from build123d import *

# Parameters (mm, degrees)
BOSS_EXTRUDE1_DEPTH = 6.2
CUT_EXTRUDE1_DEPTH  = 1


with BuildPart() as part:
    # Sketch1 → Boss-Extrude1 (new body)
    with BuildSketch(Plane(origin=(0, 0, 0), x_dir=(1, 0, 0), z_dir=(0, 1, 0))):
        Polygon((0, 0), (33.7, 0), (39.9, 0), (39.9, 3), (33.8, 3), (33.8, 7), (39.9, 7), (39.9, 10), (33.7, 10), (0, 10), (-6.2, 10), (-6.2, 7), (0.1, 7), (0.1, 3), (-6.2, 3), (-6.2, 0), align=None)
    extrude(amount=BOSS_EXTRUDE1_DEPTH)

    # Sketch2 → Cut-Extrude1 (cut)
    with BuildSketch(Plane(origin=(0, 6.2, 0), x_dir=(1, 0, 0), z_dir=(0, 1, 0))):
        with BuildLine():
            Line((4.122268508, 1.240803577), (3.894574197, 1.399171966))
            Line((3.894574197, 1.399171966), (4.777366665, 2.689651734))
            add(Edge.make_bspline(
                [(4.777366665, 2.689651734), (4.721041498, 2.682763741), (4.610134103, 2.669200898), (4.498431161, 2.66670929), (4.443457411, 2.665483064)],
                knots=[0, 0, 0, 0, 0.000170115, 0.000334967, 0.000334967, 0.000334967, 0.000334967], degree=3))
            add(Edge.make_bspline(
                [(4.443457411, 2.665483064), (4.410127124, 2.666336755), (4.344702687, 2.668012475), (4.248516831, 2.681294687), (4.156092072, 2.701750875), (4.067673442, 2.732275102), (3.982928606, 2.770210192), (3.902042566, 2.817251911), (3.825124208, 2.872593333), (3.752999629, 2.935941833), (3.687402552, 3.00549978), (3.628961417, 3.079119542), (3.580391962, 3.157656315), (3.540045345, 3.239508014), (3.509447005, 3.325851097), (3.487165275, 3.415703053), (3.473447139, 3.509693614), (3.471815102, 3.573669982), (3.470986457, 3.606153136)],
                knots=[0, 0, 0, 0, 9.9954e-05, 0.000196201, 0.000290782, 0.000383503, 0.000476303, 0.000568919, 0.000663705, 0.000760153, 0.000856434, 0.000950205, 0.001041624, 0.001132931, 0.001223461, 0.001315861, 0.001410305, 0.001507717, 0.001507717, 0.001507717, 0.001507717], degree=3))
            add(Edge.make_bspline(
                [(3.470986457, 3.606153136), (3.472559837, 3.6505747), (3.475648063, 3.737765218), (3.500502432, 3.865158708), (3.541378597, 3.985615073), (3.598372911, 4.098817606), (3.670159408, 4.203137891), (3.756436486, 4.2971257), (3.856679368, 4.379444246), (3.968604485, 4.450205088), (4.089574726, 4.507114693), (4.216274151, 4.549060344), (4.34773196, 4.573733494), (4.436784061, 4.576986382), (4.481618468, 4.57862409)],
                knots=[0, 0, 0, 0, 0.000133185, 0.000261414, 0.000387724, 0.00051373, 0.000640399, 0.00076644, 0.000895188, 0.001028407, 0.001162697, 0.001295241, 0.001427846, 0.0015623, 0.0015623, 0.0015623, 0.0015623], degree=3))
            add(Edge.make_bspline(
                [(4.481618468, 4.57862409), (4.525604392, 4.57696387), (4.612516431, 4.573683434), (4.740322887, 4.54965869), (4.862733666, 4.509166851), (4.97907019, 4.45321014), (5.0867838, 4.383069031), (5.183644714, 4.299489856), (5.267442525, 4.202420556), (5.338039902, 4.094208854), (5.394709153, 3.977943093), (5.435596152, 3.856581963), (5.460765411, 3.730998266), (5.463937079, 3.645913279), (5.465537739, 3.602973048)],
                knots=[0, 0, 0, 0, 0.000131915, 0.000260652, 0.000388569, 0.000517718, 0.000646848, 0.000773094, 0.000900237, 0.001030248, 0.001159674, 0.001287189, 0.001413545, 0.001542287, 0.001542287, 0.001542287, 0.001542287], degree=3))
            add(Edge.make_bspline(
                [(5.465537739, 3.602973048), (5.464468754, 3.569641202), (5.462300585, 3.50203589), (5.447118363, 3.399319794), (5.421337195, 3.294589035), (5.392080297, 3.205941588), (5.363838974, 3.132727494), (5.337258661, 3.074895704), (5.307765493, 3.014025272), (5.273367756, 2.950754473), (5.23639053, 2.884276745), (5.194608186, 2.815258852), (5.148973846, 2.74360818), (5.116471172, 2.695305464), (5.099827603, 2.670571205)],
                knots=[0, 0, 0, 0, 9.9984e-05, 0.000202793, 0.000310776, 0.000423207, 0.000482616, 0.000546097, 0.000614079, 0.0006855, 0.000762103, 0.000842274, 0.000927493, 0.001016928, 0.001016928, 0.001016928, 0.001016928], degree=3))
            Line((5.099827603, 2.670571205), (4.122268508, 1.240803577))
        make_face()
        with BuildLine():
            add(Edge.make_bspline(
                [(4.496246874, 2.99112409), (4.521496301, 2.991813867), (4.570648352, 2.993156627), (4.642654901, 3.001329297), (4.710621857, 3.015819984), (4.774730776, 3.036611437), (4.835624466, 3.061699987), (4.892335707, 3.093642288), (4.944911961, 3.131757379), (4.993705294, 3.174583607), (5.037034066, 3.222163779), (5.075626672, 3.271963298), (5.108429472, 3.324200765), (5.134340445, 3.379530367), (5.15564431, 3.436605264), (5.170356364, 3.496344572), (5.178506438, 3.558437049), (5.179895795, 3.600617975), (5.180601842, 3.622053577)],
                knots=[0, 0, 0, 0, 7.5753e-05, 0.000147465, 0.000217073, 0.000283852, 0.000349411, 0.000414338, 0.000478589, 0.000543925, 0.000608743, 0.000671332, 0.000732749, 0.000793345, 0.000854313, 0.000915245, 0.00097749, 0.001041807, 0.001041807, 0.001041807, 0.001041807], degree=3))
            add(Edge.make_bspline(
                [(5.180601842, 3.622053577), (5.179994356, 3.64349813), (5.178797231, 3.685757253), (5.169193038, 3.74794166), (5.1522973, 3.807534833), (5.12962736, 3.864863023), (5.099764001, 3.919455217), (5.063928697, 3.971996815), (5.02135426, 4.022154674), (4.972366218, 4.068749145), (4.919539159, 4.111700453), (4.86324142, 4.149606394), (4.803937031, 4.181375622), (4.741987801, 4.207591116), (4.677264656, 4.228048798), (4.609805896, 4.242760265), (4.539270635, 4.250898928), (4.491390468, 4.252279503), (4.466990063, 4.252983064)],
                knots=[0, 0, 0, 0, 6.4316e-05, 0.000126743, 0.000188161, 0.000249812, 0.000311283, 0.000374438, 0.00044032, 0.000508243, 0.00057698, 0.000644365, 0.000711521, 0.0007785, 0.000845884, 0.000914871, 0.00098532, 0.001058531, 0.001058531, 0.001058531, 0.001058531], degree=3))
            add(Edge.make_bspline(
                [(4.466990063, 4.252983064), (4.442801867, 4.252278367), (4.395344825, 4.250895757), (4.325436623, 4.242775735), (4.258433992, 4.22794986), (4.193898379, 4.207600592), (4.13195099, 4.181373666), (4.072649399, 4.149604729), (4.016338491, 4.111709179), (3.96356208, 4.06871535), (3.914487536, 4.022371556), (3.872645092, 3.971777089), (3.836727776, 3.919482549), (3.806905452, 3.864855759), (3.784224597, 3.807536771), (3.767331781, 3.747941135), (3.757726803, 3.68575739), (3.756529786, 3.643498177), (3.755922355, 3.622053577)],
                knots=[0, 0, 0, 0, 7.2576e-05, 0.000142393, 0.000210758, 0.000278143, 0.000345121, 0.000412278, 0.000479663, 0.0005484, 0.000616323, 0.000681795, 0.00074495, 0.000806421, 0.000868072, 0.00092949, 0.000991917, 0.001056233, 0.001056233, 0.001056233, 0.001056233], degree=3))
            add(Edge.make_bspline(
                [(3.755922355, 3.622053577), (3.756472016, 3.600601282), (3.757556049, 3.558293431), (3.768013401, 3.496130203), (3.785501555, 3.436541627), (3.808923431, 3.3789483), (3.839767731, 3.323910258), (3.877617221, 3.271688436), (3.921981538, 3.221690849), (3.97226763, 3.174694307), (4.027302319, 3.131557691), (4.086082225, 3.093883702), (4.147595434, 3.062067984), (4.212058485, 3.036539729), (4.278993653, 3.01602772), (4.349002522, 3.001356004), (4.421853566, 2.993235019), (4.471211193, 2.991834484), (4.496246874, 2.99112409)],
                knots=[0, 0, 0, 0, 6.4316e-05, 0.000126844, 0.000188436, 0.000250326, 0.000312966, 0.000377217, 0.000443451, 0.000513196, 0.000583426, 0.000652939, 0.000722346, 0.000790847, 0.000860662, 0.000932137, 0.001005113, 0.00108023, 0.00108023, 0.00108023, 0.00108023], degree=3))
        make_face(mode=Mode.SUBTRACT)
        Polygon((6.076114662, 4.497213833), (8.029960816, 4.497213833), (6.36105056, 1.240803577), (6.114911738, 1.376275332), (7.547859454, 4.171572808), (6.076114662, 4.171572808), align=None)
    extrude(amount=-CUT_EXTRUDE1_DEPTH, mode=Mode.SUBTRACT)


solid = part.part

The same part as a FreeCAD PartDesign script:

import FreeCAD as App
import Part
import Sketcher

V = App.Vector
Q = App.Units.Quantity

doc = App.newDocument("Part")
params = doc.addObject("Spreadsheet::Sheet", "Params")
for row, (alias, value) in enumerate([
    ("sketch1_height", "3 mm"),
    ("sketch1_height2", "4 mm"),
    ("sketch1_width", "6.1 mm"),
    ("sketch1_width2", "46.1 mm"),
    ("sketch1_width3", "6.3 mm"),
    ("pad1_length", "6.2 mm"),
    ("pocket1_length", "1 mm"),
], start=1):
    params.set(f"A{row}", alias)
    params.set(f"B{row}", "=" + value)
    params.setAlias(f"B{row}", alias)

body = doc.addObject("PartDesign::Body", "Body")

sketch1 = body.newObject("Sketcher::SketchObject", "Sketch")
sketch1.AttachmentSupport = (doc.getObject("XZ_Plane"), [""])
sketch1.MapMode = "FlatFace"
sketch1.addGeometry(Part.LineSegment(V(39.9, 0, 0), V(39.9, -3, 0)), False)
sketch1.addGeometry(Part.LineSegment(V(39.9, -3, 0), V(33.8, -3, 0)), False)
sketch1.addGeometry(Part.LineSegment(V(33.8, -3, 0), V(33.8, -7, 0)), False)
sketch1.addGeometry(Part.LineSegment(V(33.8, -7, 0), V(39.9, -7, 0)), False)
sketch1.addGeometry(Part.LineSegment(V(39.9, -7, 0), V(39.9, -10, 0)), False)
sketch1.addGeometry(Part.LineSegment(V(39.9, -10, 0), V(-6.2, -10, 0)), False)
sketch1.addGeometry(Part.LineSegment(V(-6.2, -10, 0), V(-6.2, -7, 0)), False)
sketch1.addGeometry(Part.LineSegment(V(-6.2, -7, 0), V(0.1, -7, 0)), False)
sketch1.addGeometry(Part.LineSegment(V(0.1, -7, 0), V(0.1, -3, 0)), False)
sketch1.addGeometry(Part.LineSegment(V(0.1, -3, 0), V(-6.2, -3, 0)), False)
sketch1.addGeometry(Part.LineSegment(V(-6.2, -3, 0), V(-6.2, 0, 0)), False)
sketch1.addGeometry(Part.LineSegment(V(-6.2, 0, 0), V(39.9, 0, 0)), False)
sketch1.addConstraint(Sketcher.Constraint("Coincident", 0, 2, 1, 1))
sketch1.addConstraint(Sketcher.Constraint("Coincident", 1, 2, 2, 1))
sketch1.addConstraint(Sketcher.Constraint("Coincident", 2, 2, 3, 1))
sketch1.addConstraint(Sketcher.Constraint("Coincident", 3, 2, 4, 1))
sketch1.addConstraint(Sketcher.Constraint("Coincident", 4, 2, 5, 1))
sketch1.addConstraint(Sketcher.Constraint("Coincident", 5, 2, 6, 1))
sketch1.addConstraint(Sketcher.Constraint("Coincident", 6, 2, 7, 1))
sketch1.addConstraint(Sketcher.Constraint("Coincident", 7, 2, 8, 1))
sketch1.addConstraint(Sketcher.Constraint("Coincident", 8, 2, 9, 1))
sketch1.addConstraint(Sketcher.Constraint("Coincident", 9, 2, 10, 1))
sketch1.addConstraint(Sketcher.Constraint("Coincident", 10, 2, 11, 1))
sketch1.addConstraint(Sketcher.Constraint("Coincident", 11, 2, 0, 1))
sketch1.addConstraint(Sketcher.Constraint("Vertical", 0))
sketch1.addConstraint(Sketcher.Constraint("Horizontal", 1))
sketch1.addConstraint(Sketcher.Constraint("Vertical", 2))
sketch1.addConstraint(Sketcher.Constraint("Horizontal", 3))
sketch1.addConstraint(Sketcher.Constraint("Vertical", 4))
sketch1.addConstraint(Sketcher.Constraint("Horizontal", 5))
sketch1.addConstraint(Sketcher.Constraint("Vertical", 6))
sketch1.addConstraint(Sketcher.Constraint("Horizontal", 7))
sketch1.addConstraint(Sketcher.Constraint("Vertical", 8))
sketch1.addConstraint(Sketcher.Constraint("Horizontal", 9))
sketch1.addConstraint(Sketcher.Constraint("Vertical", 10))
sketch1.addConstraint(Sketcher.Constraint("Horizontal", 11))
sketch1.addConstraint(Sketcher.Constraint("PointOnObject", 10, 2, -1))
sketch1.addConstraint(Sketcher.Constraint("Horizontal", 3, 2, 6, 2))
sketch1.addConstraint(Sketcher.Constraint("Horizontal", 1, 2, 8, 2))
sketch1.addConstraint(Sketcher.Constraint("Vertical", 0, 2, 3, 2))
sketch1.addConstraint(Sketcher.Constraint("Vertical", 6, 2, 9, 2))
sketch1.addConstraint(Sketcher.Constraint("Equal", 0, 4))
sketch1.addConstraint(Sketcher.Constraint("DistanceY", 0, 2, 0, 1, Q("3 mm")))
sketch1.addConstraint(Sketcher.Constraint("DistanceY", 2, 2, 2, 1, Q("4 mm")))
sketch1.addConstraint(Sketcher.Constraint("DistanceX", 1, 2, 1, 1, Q("6.1 mm")))
sketch1.addConstraint(Sketcher.Constraint("DistanceX", 5, 2, 5, 1, Q("46.1 mm")))
sketch1.addConstraint(Sketcher.Constraint("DistanceX", 7, 1, 7, 2, Q("6.3 mm")))
sketch1.addConstraint(Sketcher.Constraint("DistanceX", -1, 1, 0, 2, Q("39.9 mm")))
sketch1.setExpression("Constraints[30]", "Params.sketch1_height")
sketch1.setExpression("Constraints[31]", "Params.sketch1_height2")
sketch1.setExpression("Constraints[32]", "Params.sketch1_width")
sketch1.setExpression("Constraints[33]", "Params.sketch1_width2")
sketch1.setExpression("Constraints[34]", "Params.sketch1_width3")
pad1 = body.newObject("PartDesign::Pad", "Pad")
pad1.Profile = sketch1
pad1.setExpression("Length", "Params.pad1_length")
pad1.Reversed = True

sketch2 = body.newObject("Sketcher::SketchObject", "Sketch001")
sketch2.AttachmentSupport = (doc.getObject("XZ_Plane"), [""])
sketch2.MapMode = "FlatFace"
sketch2.AttachmentOffset = App.Placement(V(0, 0, -6.2), App.Rotation())
sketch2.addGeometry(Part.LineSegment(V(3.894574, -1.399172, 0), V(4.122269, -1.240804, 0)), False)
sketch2.addGeometry(Part.LineSegment(V(4.122269, -1.240804, 0), V(5.099828, -2.670571, 0)), False)
sketch2.addGeometry(Part.BSplineCurve([V(5.465538, -3.602973, 0), V(5.464469, -3.569641, 0), V(5.462301, -3.502036, 0), V(5.447118, -3.39932, 0), V(5.421337, -3.294589, 0), V(5.39208, -3.205942, 0), V(5.363839, -3.132727, 0), V(5.337259, -3.074896, 0), V(5.307765, -3.014025, 0), V(5.273368, -2.950754, 0), V(5.236391, -2.884277, 0), V(5.194608, -2.815259, 0), V(5.148974, -2.743608, 0), V(5.116471, -2.695305, 0), V(5.099828, -2.670571, 0)], [4, 1, 1, 1, 1, 1, 1, 1, 1, 1, 1, 1, 4], [0, 0.000099984, 0.000202793, 0.000310776, 0.000423207, 0.000482616, 0.000546097, 0.000614079, 0.0006855, 0.000762103, 0.000842274, 0.000927493, 0.001016928], False, 3, [1, 1, 1, 1, 1, 1, 1, 1, 1, 1, 1, 1, 1, 1, 1], False), False)
sketch2.addGeometry(Part.BSplineCurve([V(4.481618, -4.578624, 0), V(4.525604, -4.576964, 0), V(4.612516, -4.573683, 0), V(4.740323, -4.549659, 0), V(4.862734, -4.509167, 0), V(4.97907, -4.45321, 0), V(5.086784, -4.383069, 0), V(5.183645, -4.29949, 0), V(5.267443, -4.202421, 0), V(5.33804, -4.094209, 0), V(5.394709, -3.977943, 0), V(5.435596, -3.856582, 0), V(5.460765, -3.730998, 0), V(5.463937, -3.645913, 0), V(5.465538, -3.602973, 0)], [4, 1, 1, 1, 1, 1, 1, 1, 1, 1, 1, 1, 4], [0, 0.000131915, 0.000260652, 0.000388569, 0.000517718, 0.000646848, 0.000773094, 0.000900237, 0.001030248, 0.001159674, 0.001287189, 0.001413545, 0.001542287], False, 3, [1, 1, 1, 1, 1, 1, 1, 1, 1, 1, 1, 1, 1, 1, 1], False), False)
sketch2.addGeometry(Part.BSplineCurve([V(3.470986, -3.606153, 0), V(3.47256, -3.650575, 0), V(3.475648, -3.737765, 0), V(3.500502, -3.865159, 0), V(3.541379, -3.985615, 0), V(3.598373, -4.098818, 0), V(3.670159, -4.203138, 0), V(3.756436, -4.297126, 0), V(3.856679, -4.379444, 0), V(3.968604, -4.450205, 0), V(4.089575, -4.507115, 0), V(4.216274, -4.54906, 0), V(4.347732, -4.573733, 0), V(4.436784, -4.576986, 0), V(4.481618, -4.578624, 0)], [4, 1, 1, 1, 1, 1, 1, 1, 1, 1, 1, 1, 4], [0, 0.000133185, 0.000261414, 0.000387724, 0.00051373, 0.000640399, 0.00076644, 0.000895188, 0.001028407, 0.001162697, 0.001295241, 0.001427846, 0.0015623], False, 3, [1, 1, 1, 1, 1, 1, 1, 1, 1, 1, 1, 1, 1, 1, 1], False), False)
sketch2.addGeometry(Part.BSplineCurve([V(4.443457, -2.665483, 0), V(4.410127, -2.666337, 0), V(4.344703, -2.668012, 0), V(4.248517, -2.681295, 0), V(4.156092, -2.701751, 0), V(4.067673, -2.732275, 0), V(3.982929, -2.77021, 0), V(3.902043, -2.817252, 0), V(3.825124, -2.872593, 0), V(3.753, -2.935942, 0), V(3.687403, -3.0055, 0), V(3.628961, -3.07912, 0), V(3.580392, -3.157656, 0), V(3.540045, -3.239508, 0), V(3.509447, -3.325851, 0), V(3.487165, -3.415703, 0), V(3.473447, -3.509694, 0), V(3.471815, -3.57367, 0), V(3.470986, -3.606153, 0)], [4, 1, 1, 1, 1, 1, 1, 1, 1, 1, 1, 1, 1, 1, 1, 1, 4], [0, 0.000099954, 0.000196201, 0.000290782, 0.000383503, 0.000476303, 0.000568919, 0.000663705, 0.000760153, 0.000856434, 0.000950205, 0.001041624, 0.001132931, 0.001223461, 0.001315861, 0.001410305, 0.001507717], False, 3, [1, 1, 1, 1, 1, 1, 1, 1, 1, 1, 1, 1, 1, 1, 1, 1, 1, 1, 1], False), False)
sketch2.addGeometry(Part.BSplineCurve([V(4.777367, -2.689652, 0), V(4.721041, -2.682764, 0), V(4.610134, -2.669201, 0), V(4.498431, -2.666709, 0), V(4.443457, -2.665483, 0)], [4, 1, 4], [0, 0.000170115, 0.000334967], False, 3, [1, 1, 1, 1, 1], False), False)
sketch2.addGeometry(Part.LineSegment(V(4.777367, -2.689652, 0), V(3.894574, -1.399172, 0)), False)
sketch2.addGeometry(Part.BSplineCurve([V(3.755922, -3.622054, 0), V(3.756472, -3.600601, 0), V(3.757556, -3.558293, 0), V(3.768013, -3.49613, 0), V(3.785502, -3.436542, 0), V(3.808923, -3.378948, 0), V(3.839768, -3.32391, 0), V(3.877617, -3.271688, 0), V(3.921982, -3.221691, 0), V(3.972268, -3.174694, 0), V(4.027302, -3.131558, 0), V(4.086082, -3.093884, 0), V(4.147595, -3.062068, 0), V(4.212058, -3.03654, 0), V(4.278994, -3.016028, 0), V(4.349003, -3.001356, 0), V(4.421854, -2.993235, 0), V(4.471211, -2.991834, 0), V(4.496247, -2.991124, 0)], [4, 1, 1, 1, 1, 1, 1, 1, 1, 1, 1, 1, 1, 1, 1, 1, 4], [0, 0.000064316, 0.000126844, 0.000188436, 0.000250326, 0.000312966, 0.000377217, 0.000443451, 0.000513196, 0.000583426, 0.000652939, 0.000722346, 0.000790847, 0.000860662, 0.000932137, 0.001005113, 0.00108023], False, 3, [1, 1, 1, 1, 1, 1, 1, 1, 1, 1, 1, 1, 1, 1, 1, 1, 1, 1, 1], False), False)
sketch2.addGeometry(Part.BSplineCurve([V(4.46699, -4.252983, 0), V(4.442802, -4.252278, 0), V(4.395345, -4.250896, 0), V(4.325437, -4.242776, 0), V(4.258434, -4.22795, 0), V(4.193898, -4.207601, 0), V(4.131951, -4.181374, 0), V(4.072649, -4.149605, 0), V(4.016338, -4.111709, 0), V(3.963562, -4.068715, 0), V(3.914488, -4.022372, 0), V(3.872645, -3.971777, 0), V(3.836728, -3.919483, 0), V(3.806905, -3.864856, 0), V(3.784225, -3.807537, 0), V(3.767332, -3.747941, 0), V(3.757727, -3.685757, 0), V(3.75653, -3.643498, 0), V(3.755922, -3.622054, 0)], [4, 1, 1, 1, 1, 1, 1, 1, 1, 1, 1, 1, 1, 1, 1, 1, 4], [0, 0.000072576, 0.000142393, 0.000210758, 0.000278143, 0.000345121, 0.000412278, 0.000479663, 0.0005484, 0.000616323, 0.000681795, 0.00074495, 0.000806421, 0.000868072, 0.00092949, 0.000991917, 0.001056233], False, 3, [1, 1, 1, 1, 1, 1, 1, 1, 1, 1, 1, 1, 1, 1, 1, 1, 1, 1, 1], False), False)
sketch2.addGeometry(Part.BSplineCurve([V(5.180602, -3.622054, 0), V(5.179994, -3.643498, 0), V(5.178797, -3.685757, 0), V(5.169193, -3.747942, 0), V(5.152297, -3.807535, 0), V(5.129627, -3.864863, 0), V(5.099764, -3.919455, 0), V(5.063929, -3.971997, 0), V(5.021354, -4.022155, 0), V(4.972366, -4.068749, 0), V(4.919539, -4.1117, 0), V(4.863241, -4.149606, 0), V(4.803937, -4.181376, 0), V(4.741988, -4.207591, 0), V(4.677265, -4.228049, 0), V(4.609806, -4.24276, 0), V(4.539271, -4.250899, 0), V(4.49139, -4.25228, 0), V(4.46699, -4.252983, 0)], [4, 1, 1, 1, 1, 1, 1, 1, 1, 1, 1, 1, 1, 1, 1, 1, 4], [0, 0.000064316, 0.000126743, 0.000188161, 0.000249812, 0.000311283, 0.000374438, 0.00044032, 0.000508243, 0.00057698, 0.000644365, 0.000711521, 0.0007785, 0.000845884, 0.000914871, 0.00098532, 0.001058531], False, 3, [1, 1, 1, 1, 1, 1, 1, 1, 1, 1, 1, 1, 1, 1, 1, 1, 1, 1, 1], False), False)
sketch2.addGeometry(Part.BSplineCurve([V(4.496247, -2.991124, 0), V(4.521496, -2.991814, 0), V(4.570648, -2.993157, 0), V(4.642655, -3.001329, 0), V(4.710622, -3.01582, 0), V(4.774731, -3.036611, 0), V(4.835624, -3.0617, 0), V(4.892336, -3.093642, 0), V(4.944912, -3.131757, 0), V(4.993705, -3.174584, 0), V(5.037034, -3.222164, 0), V(5.075627, -3.271963, 0), V(5.108429, -3.324201, 0), V(5.13434, -3.37953, 0), V(5.155644, -3.436605, 0), V(5.170356, -3.496345, 0), V(5.178506, -3.558437, 0), V(5.179896, -3.600618, 0), V(5.180602, -3.622054, 0)], [4, 1, 1, 1, 1, 1, 1, 1, 1, 1, 1, 1, 1, 1, 1, 1, 4], [0, 0.000075753, 0.000147465, 0.000217073, 0.000283852, 0.000349411, 0.000414338, 0.000478589, 0.000543925, 0.000608743, 0.000671332, 0.000732749, 0.000793345, 0.000854313, 0.000915245, 0.00097749, 0.001041807], False, 3, [1, 1, 1, 1, 1, 1, 1, 1, 1, 1, 1, 1, 1, 1, 1, 1, 1, 1, 1], False), False)
sketch2.addGeometry(Part.LineSegment(V(8.029961, -4.497214, 0), V(6.076115, -4.497214, 0)), False)
sketch2.addGeometry(Part.LineSegment(V(6.076115, -4.497214, 0), V(6.076115, -4.171573, 0)), False)
sketch2.addGeometry(Part.LineSegment(V(6.076115, -4.171573, 0), V(7.547859, -4.171573, 0)), False)
sketch2.addGeometry(Part.LineSegment(V(7.547859, -4.171573, 0), V(6.114912, -1.376275, 0)), False)
sketch2.addGeometry(Part.LineSegment(V(6.114912, -1.376275, 0), V(6.361051, -1.240804, 0)), False)
sketch2.addGeometry(Part.LineSegment(V(6.361051, -1.240804, 0), V(8.029961, -4.497214, 0)), False)
sketch2.addConstraint(Sketcher.Constraint("Block", 2))
sketch2.addConstraint(Sketcher.Constraint("Block", 3))
sketch2.addConstraint(Sketcher.Constraint("Block", 4))
sketch2.addConstraint(Sketcher.Constraint("Block", 5))
sketch2.addConstraint(Sketcher.Constraint("Block", 6))
sketch2.addConstraint(Sketcher.Constraint("Block", 8))
sketch2.addConstraint(Sketcher.Constraint("Block", 9))
sketch2.addConstraint(Sketcher.Constraint("Block", 10))
sketch2.addConstraint(Sketcher.Constraint("Block", 11))
sketch2.addConstraint(Sketcher.Constraint("Coincident", 0, 2, 1, 1))
sketch2.addConstraint(Sketcher.Constraint("Coincident", 1, 2, 2, 2))
sketch2.addConstraint(Sketcher.Constraint("Coincident", 6, 1, 7, 1))
sketch2.addConstraint(Sketcher.Constraint("Coincident", 7, 2, 0, 1))
sketch2.addConstraint(Sketcher.Constraint("Coincident", 12, 2, 13, 1))
sketch2.addConstraint(Sketcher.Constraint("Coincident", 13, 2, 14, 1))
sketch2.addConstraint(Sketcher.Constraint("Coincident", 14, 2, 15, 1))
sketch2.addConstraint(Sketcher.Constraint("Coincident", 15, 2, 16, 1))
sketch2.addConstraint(Sketcher.Constraint("Coincident", 16, 2, 17, 1))
sketch2.addConstraint(Sketcher.Constraint("Coincident", 17, 2, 12, 1))
sketch2.addConstraint(Sketcher.Constraint("Horizontal", 12))
sketch2.addConstraint(Sketcher.Constraint("Vertical", 13))
sketch2.addConstraint(Sketcher.Constraint("Horizontal", 14))
sketch2.addConstraint(Sketcher.Constraint("Horizontal", 0, 2, 16, 2))
sketch2.addConstraint(Sketcher.Constraint("DistanceY", 13, 2, 1, 2, Q("1.501002 mm")))
sketch2.addConstraint(Sketcher.Constraint("DistanceY", 13, 1, 13, 2, Q("0.325641 mm")))
sketch2.addConstraint(Sketcher.Constraint("DistanceY", 1, 2, 7, 2, Q("1.271399 mm")))
sketch2.addConstraint(Sketcher.Constraint("DistanceX", 14, 2, 17, 2, Q("0.482101 mm")))
sketch2.addConstraint(Sketcher.Constraint("Distance", 1, Q("1.73201 mm")))
sketch2.addConstraint(Sketcher.Constraint("Distance", 7, Q("1.563541 mm")))
sketch2.addConstraint(Sketcher.Constraint("DistanceX", 12, 2, 12, 1, Q("1.953846 mm")))
sketch2.addConstraint(Sketcher.Constraint("DistanceX", -1, 1, 0, 2, Q("4.122269 mm")))
sketch2.addConstraint(Sketcher.Constraint("DistanceX", -1, 1, 14, 2, Q("7.547859 mm")))
sketch2.addConstraint(Sketcher.Constraint("DistanceX", -1, 1, 15, 2, Q("6.114912 mm")))
sketch2.addConstraint(Sketcher.Constraint("DistanceX", -1, 1, 16, 2, Q("6.361051 mm")))
sketch2.addConstraint(Sketcher.Constraint("DistanceY", 15, 2, 0, 2, Q("0.135472 mm")))
pocket1 = body.newObject("PartDesign::Pocket", "Pocket")
pocket1.Profile = sketch2
pocket1.setExpression("Length", "Params.pocket1_length")
pocket1.Reversed = True

doc.recompute()
